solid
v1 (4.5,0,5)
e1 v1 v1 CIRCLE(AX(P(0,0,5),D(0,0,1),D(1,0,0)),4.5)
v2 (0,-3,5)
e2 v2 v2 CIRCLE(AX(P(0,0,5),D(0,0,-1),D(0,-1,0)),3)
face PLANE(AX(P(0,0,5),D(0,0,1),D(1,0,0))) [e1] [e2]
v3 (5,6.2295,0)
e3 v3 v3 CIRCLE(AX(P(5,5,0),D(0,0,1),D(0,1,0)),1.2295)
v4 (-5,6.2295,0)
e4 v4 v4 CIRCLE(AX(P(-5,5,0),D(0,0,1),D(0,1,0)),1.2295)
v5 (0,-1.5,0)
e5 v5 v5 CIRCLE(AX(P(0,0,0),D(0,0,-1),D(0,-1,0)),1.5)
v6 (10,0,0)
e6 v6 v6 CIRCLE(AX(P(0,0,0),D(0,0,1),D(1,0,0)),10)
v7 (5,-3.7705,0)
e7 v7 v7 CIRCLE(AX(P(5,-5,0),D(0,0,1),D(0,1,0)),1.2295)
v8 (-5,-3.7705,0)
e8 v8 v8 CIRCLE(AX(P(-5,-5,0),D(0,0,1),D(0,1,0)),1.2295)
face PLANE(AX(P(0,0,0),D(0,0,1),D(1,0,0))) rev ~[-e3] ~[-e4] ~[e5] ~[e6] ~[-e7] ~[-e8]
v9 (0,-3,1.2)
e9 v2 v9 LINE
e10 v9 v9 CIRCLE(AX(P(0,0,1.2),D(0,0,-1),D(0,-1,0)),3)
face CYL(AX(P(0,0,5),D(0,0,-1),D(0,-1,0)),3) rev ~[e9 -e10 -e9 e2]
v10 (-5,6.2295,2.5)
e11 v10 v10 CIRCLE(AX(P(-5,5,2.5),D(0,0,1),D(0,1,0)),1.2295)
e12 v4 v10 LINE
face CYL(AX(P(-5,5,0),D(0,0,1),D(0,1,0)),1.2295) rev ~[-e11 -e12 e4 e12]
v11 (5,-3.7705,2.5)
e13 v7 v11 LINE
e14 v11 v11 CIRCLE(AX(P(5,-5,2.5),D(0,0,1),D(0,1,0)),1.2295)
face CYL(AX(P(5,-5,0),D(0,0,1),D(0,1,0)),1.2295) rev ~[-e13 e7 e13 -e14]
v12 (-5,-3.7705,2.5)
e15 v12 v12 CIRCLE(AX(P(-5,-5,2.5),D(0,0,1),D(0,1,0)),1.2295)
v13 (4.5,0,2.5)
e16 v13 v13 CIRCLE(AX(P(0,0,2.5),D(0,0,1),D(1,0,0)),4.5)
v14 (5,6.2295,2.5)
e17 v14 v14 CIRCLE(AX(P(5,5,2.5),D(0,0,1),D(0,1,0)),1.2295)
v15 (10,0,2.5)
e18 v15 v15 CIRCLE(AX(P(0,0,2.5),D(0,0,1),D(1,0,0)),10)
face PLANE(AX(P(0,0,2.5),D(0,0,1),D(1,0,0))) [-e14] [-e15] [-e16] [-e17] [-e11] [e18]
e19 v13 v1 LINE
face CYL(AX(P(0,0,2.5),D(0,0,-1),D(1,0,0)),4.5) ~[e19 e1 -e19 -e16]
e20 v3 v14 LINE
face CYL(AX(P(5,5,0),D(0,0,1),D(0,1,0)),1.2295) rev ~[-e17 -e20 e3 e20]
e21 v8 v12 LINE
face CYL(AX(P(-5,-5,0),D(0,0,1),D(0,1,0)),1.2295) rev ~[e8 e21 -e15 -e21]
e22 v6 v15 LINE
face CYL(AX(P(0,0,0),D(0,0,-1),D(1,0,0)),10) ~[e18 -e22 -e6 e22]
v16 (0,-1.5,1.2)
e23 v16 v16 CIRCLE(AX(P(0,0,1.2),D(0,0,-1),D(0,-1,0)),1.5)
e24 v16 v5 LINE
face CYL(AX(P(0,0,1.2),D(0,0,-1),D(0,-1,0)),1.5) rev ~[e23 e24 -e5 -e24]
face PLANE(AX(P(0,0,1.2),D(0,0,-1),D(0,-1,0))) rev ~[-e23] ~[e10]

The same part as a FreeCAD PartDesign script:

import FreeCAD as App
import Part
import Sketcher

V = App.Vector

doc = App.newDocument("Part")
params = doc.addObject("Spreadsheet::Sheet", "Params")
for row, (alias, value) in enumerate([
    ("sketch1_diameter", "20 mm"),
    ("pad1_length", "2.5 mm"),
    ("sketch2_diameter", "9 mm"),
    ("pad2_length", "2.5 mm"),
    ("hole_diameter", "2.459 mm"),
    ("sketch4_diameter", "3 mm"),
    ("hole2_diameter", "3 mm"),
    ("hole2_cbore_diameter", "6 mm"),
    ("hole2_cbore_depth", "3.8 mm"),
], start=1):
    params.set(f"A{row}", alias)
    params.set(f"B{row}", "=" + value)
    params.setAlias(f"B{row}", alias)

body = doc.addObject("PartDesign::Body", "Body")

sketch1 = body.newObject("Sketcher::SketchObject", "Sketch")
sketch1.AttachmentSupport = (doc.getObject("XY_Plane"), [""])
sketch1.MapMode = "FlatFace"
sketch1.addGeometry(Part.Circle(V(0, 0, 0), V(0, 0, 1), 10), False)
sketch1.addConstraint([
    Sketcher.Constraint("Coincident", 0, 3, -1, 1),
    Sketcher.Constraint("Diameter", 0, 20.0),
])
sketch1.setExpression("Constraints[1]", "Params.sketch1_diameter")
pad1 = body.newObject("PartDesign::Pad", "Pad")
pad1.Profile = sketch1
pad1.setExpression("Length", "Params.pad1_length")

sketch2 = body.newObject("Sketcher::SketchObject", "Sketch001")
sketch2.AttachmentSupport = (doc.getObject("XY_Plane"), [""])
sketch2.MapMode = "FlatFace"
sketch2.AttachmentOffset = App.Placement(V(0, 0, 2.5), App.Rotation())
sketch2.addGeometry(Part.Circle(V(0, 0, 0), V(0, 0, 1), 4.5), False)
sketch2.addConstraint([
    Sketcher.Constraint("Coincident", 0, 3, -1, 1),
    Sketcher.Constraint("Diameter", 0, 9.0),
])
sketch2.setExpression("Constraints[1]", "Params.sketch2_diameter")
pad2 = body.newObject("PartDesign::Pad", "Pad001")
pad2.Profile = sketch2
pad2.setExpression("Length", "Params.pad2_length")

sketch3 = body.newObject("Sketcher::SketchObject", "Sketch002")
sketch3.AttachmentSupport = (doc.getObject("XY_Plane"), [""])
sketch3.MapMode = "FlatFace"
sketch3.addGeometry([
    Part.Circle(V(5, 5, 0), V(0, 0, 1), 1.2),
    Part.Circle(V(-5, 5, 0), V(0, 0, 1), 1.2),
    Part.Circle(V(-5, -5, 0), V(0, 0, 1), 1.2),
    Part.Circle(V(5, -5, 0), V(0, 0, 1), 1.2),
], False)
sketch3.addConstraint([
    Sketcher.Constraint("Equal", 0, 1),
    Sketcher.Constraint("Equal", 1, 2),
    Sketcher.Constraint("Equal", 2, 3),
    Sketcher.Constraint("Symmetric", 0, 3, 2, 3, -1, 1),
    Sketcher.Constraint("Symmetric", 1, 3, 3, 3, -1, 1),
    Sketcher.Constraint("Symmetric", 0, 3, 1, 3, -2),
    Sketcher.Constraint("Diameter", 0, 2.459),
    Sketcher.Constraint("DistanceX", -1, 1, 0, 3, 5.0),
    Sketcher.Constraint("DistanceY", -1, 1, 0, 3, 5.0),
])
doc.recompute()
hole = body.newObject("PartDesign::Hole", "Hole")
hole.Profile = sketch3
hole.ThreadType = "None"
hole.setExpression("Diameter", "Params.hole_diameter")
hole.DepthType = "ThroughAll"
hole.Reversed = True

sketch4 = body.newObject("Sketcher::SketchObject", "Sketch003")
sketch4.AttachmentSupport = (doc.getObject("XY_Plane"), [""])
sketch4.MapMode = "FlatFace"
sketch4.AttachmentOffset = App.Placement(V(0, 0, 5), App.Rotation())
sketch4.addGeometry(Part.Circle(V(0, 0, 0), V(0, 0, 1), 1.5), False)
sketch4.addConstraint([
    Sketcher.Constraint("Coincident", 0, 3, -1, 1),
    Sketcher.Constraint("Diameter", 0, 3.0),
])
sketch4.setExpression("Constraints[1]", "Params.sketch4_diameter")
doc.recompute()
hole2 = body.newObject("PartDesign::Hole", "Hole001")
hole2.Profile = sketch4
hole2.ThreadType = "None"
hole2.setExpression("Diameter", "Params.hole2_diameter")
hole2.DepthType = "ThroughAll"
hole2.HoleCutType = "Counterbore"
hole2.setExpression("HoleCutDiameter", "Params.hole2_cbore_diameter")
hole2.setExpression("HoleCutDepth", "Params.hole2_cbore_depth")

doc.recompute()
